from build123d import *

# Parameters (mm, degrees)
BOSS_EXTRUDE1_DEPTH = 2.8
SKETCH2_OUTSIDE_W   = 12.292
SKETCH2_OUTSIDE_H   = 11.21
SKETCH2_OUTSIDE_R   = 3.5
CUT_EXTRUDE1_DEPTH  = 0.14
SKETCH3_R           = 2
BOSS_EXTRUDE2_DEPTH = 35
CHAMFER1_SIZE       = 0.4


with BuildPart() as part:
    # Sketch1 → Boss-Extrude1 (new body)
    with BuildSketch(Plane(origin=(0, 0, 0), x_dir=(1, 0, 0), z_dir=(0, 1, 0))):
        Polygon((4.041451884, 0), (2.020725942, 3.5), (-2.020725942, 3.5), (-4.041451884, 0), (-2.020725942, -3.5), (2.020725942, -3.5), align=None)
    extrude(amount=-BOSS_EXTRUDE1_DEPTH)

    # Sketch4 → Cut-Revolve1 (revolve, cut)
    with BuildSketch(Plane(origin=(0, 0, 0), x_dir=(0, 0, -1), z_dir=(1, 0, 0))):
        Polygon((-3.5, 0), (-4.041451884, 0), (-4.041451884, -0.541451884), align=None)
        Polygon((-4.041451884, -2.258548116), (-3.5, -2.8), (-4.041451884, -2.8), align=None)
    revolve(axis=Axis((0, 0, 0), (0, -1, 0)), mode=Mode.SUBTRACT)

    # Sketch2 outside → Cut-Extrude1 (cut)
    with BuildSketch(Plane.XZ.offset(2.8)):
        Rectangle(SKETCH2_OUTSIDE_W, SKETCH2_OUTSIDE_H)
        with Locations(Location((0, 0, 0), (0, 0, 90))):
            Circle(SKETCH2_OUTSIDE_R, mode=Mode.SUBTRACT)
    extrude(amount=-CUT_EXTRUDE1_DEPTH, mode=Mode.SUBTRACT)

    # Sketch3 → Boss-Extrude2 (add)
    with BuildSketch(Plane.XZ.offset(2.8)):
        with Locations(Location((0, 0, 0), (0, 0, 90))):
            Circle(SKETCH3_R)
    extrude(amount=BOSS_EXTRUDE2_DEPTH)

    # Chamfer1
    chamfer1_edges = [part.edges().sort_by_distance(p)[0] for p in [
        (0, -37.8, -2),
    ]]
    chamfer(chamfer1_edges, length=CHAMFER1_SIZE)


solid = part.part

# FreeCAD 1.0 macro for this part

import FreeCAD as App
import Part
import Sketcher
Q = App.Units.Quantity


def edges_at(feature, points):
    """Names of the edges that pass closest to the given points."""
    edges = feature.Shape.Edges
    near = lambda p: min(range(len(edges)), key=lambda i: edges[i].distToShape(Part.Vertex(*p))[0])
    return sorted({f"Edge{near(p) + 1}" for p in points})

doc = App.newDocument("Part")
body = doc.addObject("PartDesign::Body", "Body")

# Sketch on XZ plane
sketch1 = doc.addObject("Sketcher::SketchObject", "Sketch")
body.addObject(sketch1)
sketch1.AttachmentSupport = (doc.XZ_Plane, [""])
sketch1.MapMode = "FlatFace"
sketch1.addGeometry(Part.LineSegment(App.Vector(4.041452, 0, 0), App.Vector(2.020726, -3.5, 0)), False)
sketch1.addGeometry(Part.LineSegment(App.Vector(2.020726, -3.5, 0), App.Vector(-2.020726, -3.5, 0)), False)
sketch1.addGeometry(Part.LineSegment(App.Vector(-2.020726, -3.5, 0), App.Vector(-4.041452, 0, 0)), False)
sketch1.addGeometry(Part.LineSegment(App.Vector(-4.041452, 0, 0), App.Vector(-2.020726, 3.5, 0)), False)
sketch1.addGeometry(Part.LineSegment(App.Vector(-2.020726, 3.5, 0), App.Vector(2.020726, 3.5, 0)), False)
sketch1.addGeometry(Part.LineSegment(App.Vector(2.020726, 3.5, 0), App.Vector(4.041452, 0, 0)), False)
sketch1.addConstraint(Sketcher.Constraint("Coincident", 0, 2, 1, 1))
sketch1.addConstraint(Sketcher.Constraint("Coincident", 1, 2, 2, 1))
sketch1.addConstraint(Sketcher.Constraint("Coincident", 2, 2, 3, 1))
sketch1.addConstraint(Sketcher.Constraint("Coincident", 3, 2, 4, 1))
sketch1.addConstraint(Sketcher.Constraint("Coincident", 4, 2, 5, 1))
sketch1.addConstraint(Sketcher.Constraint("Coincident", 5, 2, 0, 1))
sketch1.addConstraint(Sketcher.Constraint("Horizontal", 1))
sketch1.addConstraint(Sketcher.Constraint("Horizontal", 4))
sketch1.addConstraint(Sketcher.Constraint("Symmetric", 0, 2, 3, 2, -1, 1))
sketch1.addConstraint(Sketcher.Constraint("Symmetric", 2, 2, 5, 2, -1, 1))
sketch1.addConstraint(Sketcher.Constraint("PointOnObject", 2, 2, -1))
sketch1.addConstraint(Sketcher.Constraint("Parallel", 2, 5))
sketch1.addConstraint(Sketcher.Constraint("Vertical", 1, 2, 3, 2))
sketch1.addConstraint(Sketcher.Constraint("Angle", 0, Q("-120 deg")))
sketch1.addConstraint(Sketcher.Constraint("DistanceY", 1, 2, 3, 2, 7.0))
sketch1.addConstraint(Sketcher.Constraint("DistanceX", 1, 2, 1, 1, 4.041452))
pad1 = doc.addObject("PartDesign::Pad", "Pad")
body.addObject(pad1)
pad1.Profile = sketch1
pad1.Length = 2.8

# Sketch on YZ plane
sketch2 = doc.addObject("Sketcher::SketchObject", "Sketch001")
body.addObject(sketch2)
sketch2.AttachmentSupport = (doc.YZ_Plane, [""])
sketch2.MapMode = "FlatFace"
sketch2.addGeometry(Part.LineSegment(App.Vector(0, 3.5, 0), App.Vector(0, 4.041452, 0)), False)
sketch2.addGeometry(Part.LineSegment(App.Vector(0, 4.041452, 0), App.Vector(-0.541452, 4.041452, 0)), False)
sketch2.addGeometry(Part.LineSegment(App.Vector(-0.541452, 4.041452, 0), App.Vector(0, 3.5, 0)), False)
sketch2.addGeometry(Part.LineSegment(App.Vector(-2.8, 3.5, 0), App.Vector(-2.258548, 4.041452, 0)), False)
sketch2.addGeometry(Part.LineSegment(App.Vector(-2.258548, 4.041452, 0), App.Vector(-2.8, 4.041452, 0)), False)
sketch2.addGeometry(Part.LineSegment(App.Vector(-2.8, 4.041452, 0), App.Vector(-2.8, 3.5, 0)), False)
sketch2.addConstraint(Sketcher.Constraint("Coincident", 0, 2, 1, 1))
sketch2.addConstraint(Sketcher.Constraint("Coincident", 1, 2, 2, 1))
sketch2.addConstraint(Sketcher.Constraint("Coincident", 2, 2, 0, 1))
sketch2.addConstraint(Sketcher.Constraint("Coincident", 3, 2, 4, 1))
sketch2.addConstraint(Sketcher.Constraint("Coincident", 4, 2, 5, 1))
sketch2.addConstraint(Sketcher.Constraint("Coincident", 5, 2, 3, 1))
sketch2.addConstraint(Sketcher.Constraint("Vertical", 0))
sketch2.addConstraint(Sketcher.Constraint("Horizontal", 1))
sketch2.addConstraint(Sketcher.Constraint("Horizontal", 4))
sketch2.addConstraint(Sketcher.Constraint("Vertical", 5))
sketch2.addConstraint(Sketcher.Constraint("PointOnObject", 0, 2, -2))
sketch2.addConstraint(Sketcher.Constraint("Perpendicular", 2, 3))
sketch2.addConstraint(Sketcher.Constraint("Horizontal", 1, 2, 3, 2))
sketch2.addConstraint(Sketcher.Constraint("Horizontal", 2, 2, 5, 2))
sketch2.addConstraint(Sketcher.Constraint("Equal", 1, 4))
sketch2.addConstraint(Sketcher.Constraint("DistanceY", -1, 1, 2, 2, 3.5))
sketch2.addConstraint(Sketcher.Constraint("DistanceX", 4, 2, -1, 1, 2.8))
sketch2.addConstraint(Sketcher.Constraint("DistanceX", 1, 2, 1, 1, 0.541452))
groove = doc.addObject("PartDesign::Groove", "Groove")
body.addObject(groove)
groove.Profile = sketch2
groove.ReferenceAxis = (sketch2, ["H_Axis"])
groove.Angle = 360

# Sketch on XZ plane
sketch3 = doc.addObject("Sketcher::SketchObject", "Sketch002")
body.addObject(sketch3)
sketch3.AttachmentSupport = (doc.XZ_Plane, [""])
sketch3.MapMode = "FlatFace"
sketch3.AttachmentOffset = App.Placement(App.Vector(0, 0, 2.8), App.Rotation())
sketch3.addGeometry(Part.LineSegment(App.Vector(-6.146, 5.605, 0), App.Vector(-6.146, -5.605, 0)), False)
sketch3.addGeometry(Part.LineSegment(App.Vector(-6.146, -5.605, 0), App.Vector(6.146, -5.605, 0)), False)
sketch3.addGeometry(Part.LineSegment(App.Vector(6.146, -5.605, 0), App.Vector(6.146, 5.605, 0)), False)
sketch3.addGeometry(Part.LineSegment(App.Vector(6.146, 5.605, 0), App.Vector(-6.146, 5.605, 0)), False)
sketch3.addGeometry(Part.Circle(App.Vector(0, 0, 0), App.Vector(0, 0, 1), 3.5), False)
sketch3.addConstraint(Sketcher.Constraint("Coincident", 0, 2, 1, 1))
sketch3.addConstraint(Sketcher.Constraint("Coincident", 1, 2, 2, 1))
sketch3.addConstraint(Sketcher.Constraint("Coincident", 2, 2, 3, 1))
sketch3.addConstraint(Sketcher.Constraint("Coincident", 3, 2, 0, 1))
sketch3.addConstraint(Sketcher.Constraint("Vertical", 0))
sketch3.addConstraint(Sketcher.Constraint("Horizontal", 1))
sketch3.addConstraint(Sketcher.Constraint("Vertical", 2))
sketch3.addConstraint(Sketcher.Constraint("Horizontal", 3))
sketch3.addConstraint(Sketcher.Constraint("Coincident", 4, 3, -1, 1))
sketch3.addConstraint(Sketcher.Constraint("Symmetric", 0, 2, 2, 2, -1, 1))
sketch3.addConstraint(Sketcher.Constraint("Diameter", 4, 7.0))
sketch3.addConstraint(Sketcher.Constraint("DistanceY", 0, 2, 0, 1, 11.21))
sketch3.addConstraint(Sketcher.Constraint("DistanceX", 1, 1, 1, 2, 12.292))
pocket1 = doc.addObject("PartDesign::Pocket", "Pocket")
body.addObject(pocket1)
pocket1.Profile = sketch3
pocket1.Length = 0.14

# Sketch on XZ plane
sketch4 = doc.addObject("Sketcher::SketchObject", "Sketch003")
body.addObject(sketch4)
sketch4.AttachmentSupport = (doc.XZ_Plane, [""])
sketch4.MapMode = "FlatFace"
sketch4.AttachmentOffset = App.Placement(App.Vector(0, 0, 2.8), App.Rotation())
sketch4.addGeometry(Part.Circle(App.Vector(0, 0, 0), App.Vector(0, 0, 1), 2), False)
sketch4.addConstraint(Sketcher.Constraint("Coincident", 0, 3, -1, 1))
sketch4.addConstraint(Sketcher.Constraint("Diameter", 0, 4.0))
pad2 = doc.addObject("PartDesign::Pad", "Pad001")
body.addObject(pad2)
pad2.Profile = sketch4
pad2.Length = 35
doc.recompute()

chamfer = doc.addObject("PartDesign::Chamfer", "Chamfer")
body.addObject(chamfer)
chamfer.Base = (pad2, edges_at(pad2, [(0, -37.8, -2)]))
chamfer.Size = 0.4

doc.recompute()
